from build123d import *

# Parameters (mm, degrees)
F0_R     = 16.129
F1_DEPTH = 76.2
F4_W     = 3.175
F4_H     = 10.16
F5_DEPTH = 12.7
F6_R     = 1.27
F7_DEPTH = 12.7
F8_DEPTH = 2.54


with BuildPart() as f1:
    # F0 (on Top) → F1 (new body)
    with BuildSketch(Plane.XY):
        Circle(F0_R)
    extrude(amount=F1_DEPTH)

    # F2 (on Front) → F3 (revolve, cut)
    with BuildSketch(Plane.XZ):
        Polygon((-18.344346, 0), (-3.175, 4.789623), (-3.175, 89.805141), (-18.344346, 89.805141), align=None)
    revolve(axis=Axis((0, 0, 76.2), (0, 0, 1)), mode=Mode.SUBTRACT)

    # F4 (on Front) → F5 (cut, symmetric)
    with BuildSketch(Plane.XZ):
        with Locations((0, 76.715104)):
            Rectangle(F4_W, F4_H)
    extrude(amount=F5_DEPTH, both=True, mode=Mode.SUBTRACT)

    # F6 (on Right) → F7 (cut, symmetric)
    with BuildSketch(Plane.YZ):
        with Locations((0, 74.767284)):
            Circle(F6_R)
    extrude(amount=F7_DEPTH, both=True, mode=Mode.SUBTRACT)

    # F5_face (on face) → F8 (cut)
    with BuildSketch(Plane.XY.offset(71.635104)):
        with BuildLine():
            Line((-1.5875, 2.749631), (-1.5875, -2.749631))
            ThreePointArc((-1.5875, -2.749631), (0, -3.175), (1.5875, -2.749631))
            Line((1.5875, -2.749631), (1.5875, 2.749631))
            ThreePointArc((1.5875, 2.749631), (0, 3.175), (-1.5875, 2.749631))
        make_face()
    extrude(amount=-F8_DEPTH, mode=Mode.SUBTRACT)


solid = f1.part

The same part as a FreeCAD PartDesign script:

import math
import FreeCAD as App
import Part
import Sketcher

V = App.Vector
Q = App.Units.Quantity

doc = App.newDocument("Part")
body = doc.addObject("PartDesign::Body", "Body")

sketch1 = body.newObject("Sketcher::SketchObject", "Sketch")
sketch1.AttachmentSupport = (doc.getObject("XY_Plane"), [""])
sketch1.MapMode = "FlatFace"
sketch1.addGeometry(Part.Circle(V(0, 0, 0), V(0, 0, 1), 16), False)
sketch1.addConstraint(Sketcher.Constraint("Coincident", 0, 3, -1, 1))
sketch1.addConstraint(Sketcher.Constraint("Diameter", 0, Q("1.27 in")))
pad1 = body.newObject("PartDesign::Pad", "Pad")
pad1.Profile = sketch1
pad1.Length = Q("3 in")

sketch2 = body.newObject("Sketcher::SketchObject", "Sketch001")
sketch2.AttachmentSupport = (doc.getObject("XZ_Plane"), [""])
sketch2.MapMode = "FlatFace"
sketch2.addGeometry(Part.LineSegment(V(-18, 0, 0), V(-3, 5, 0)), False)
sketch2.addGeometry(Part.LineSegment(V(-3, 5, 0), V(-3, 90, 0)), False)
sketch2.addGeometry(Part.LineSegment(V(-3, 90, 0), V(-18, 90, 0)), False)
sketch2.addGeometry(Part.LineSegment(V(-18, 90, 0), V(-18, 0, 0)), False)
sketch2.addConstraint(Sketcher.Constraint("Coincident", 0, 2, 1, 1))
sketch2.addConstraint(Sketcher.Constraint("Coincident", 1, 2, 2, 1))
sketch2.addConstraint(Sketcher.Constraint("Coincident", 2, 2, 3, 1))
sketch2.addConstraint(Sketcher.Constraint("Coincident", 3, 2, 0, 1))
sketch2.addConstraint(Sketcher.Constraint("Vertical", 1))
sketch2.addConstraint(Sketcher.Constraint("Horizontal", 2))
sketch2.addConstraint(Sketcher.Constraint("Vertical", 3))
sketch2.addConstraint(Sketcher.Constraint("PointOnObject", 3, 2, -1))
sketch2.addConstraint(Sketcher.Constraint("DistanceX", 0, 2, -1, 1, Q("0.125 in")))
sketch2.addConstraint(Sketcher.Constraint("DistanceY", 1, 1, 1, 2, 85.015518))
sketch2.addConstraint(Sketcher.Constraint("DistanceY", 3, 2, 3, 1, 89.805141))
sketch2.addConstraint(Sketcher.Constraint("Distance", 0, 15.907531))
groove = body.newObject("PartDesign::Groove", "Groove")
groove.Profile = sketch2
groove.ReferenceAxis = (sketch2, ["V_Axis"])
groove.Angle = 360

sketch3 = body.newObject("Sketcher::SketchObject", "Sketch002")
sketch3.AttachmentSupport = (doc.getObject("XZ_Plane"), [""])
sketch3.MapMode = "FlatFace"
sketch3.addGeometry(Part.LineSegment(V(-1.6, 81.8, 0), V(-1.6, 71.6, 0)), False)
sketch3.addGeometry(Part.LineSegment(V(-1.6, 71.6, 0), V(1.6, 71.6, 0)), False)
sketch3.addGeometry(Part.LineSegment(V(1.6, 71.6, 0), V(1.6, 81.8, 0)), False)
sketch3.addGeometry(Part.LineSegment(V(1.6, 81.8, 0), V(-1.6, 81.8, 0)), False)
sketch3.addConstraint(Sketcher.Constraint("Coincident", 0, 2, 1, 1))
sketch3.addConstraint(Sketcher.Constraint("Coincident", 1, 2, 2, 1))
sketch3.addConstraint(Sketcher.Constraint("Coincident", 2, 2, 3, 1))
sketch3.addConstraint(Sketcher.Constraint("Coincident", 3, 2, 0, 1))
sketch3.addConstraint(Sketcher.Constraint("Vertical", 0))
sketch3.addConstraint(Sketcher.Constraint("Horizontal", 1))
sketch3.addConstraint(Sketcher.Constraint("Vertical", 2))
sketch3.addConstraint(Sketcher.Constraint("Horizontal", 3))
sketch3.addConstraint(Sketcher.Constraint("DistanceY", 0, 2, 0, 1, Q("0.4 in")))
sketch3.addConstraint(Sketcher.Constraint("DistanceX", 1, 1, 1, 2, Q("0.125 in")))
sketch3.addConstraint(Sketcher.Constraint("DistanceX", 0, 2, -1, 1, Q("0.0625 in")))
sketch3.addConstraint(Sketcher.Constraint("DistanceY", -1, 1, 0, 2, 71.635104))
pocket1 = body.newObject("PartDesign::Pocket", "Pocket")
pocket1.Profile = sketch3
pocket1.Length = Q("1 in")
pocket1.Midplane = True

sketch4 = body.newObject("Sketcher::SketchObject", "Sketch003")
sketch4.AttachmentSupport = (doc.getObject("YZ_Plane"), [""])
sketch4.MapMode = "FlatFace"
sketch4.addGeometry(Part.Circle(V(0, 74.8, 0), V(0, 0, 1), 1.3), False)
sketch4.addConstraint(Sketcher.Constraint("PointOnObject", 0, 3, -2))
sketch4.addConstraint(Sketcher.Constraint("Diameter", 0, Q("0.1 in")))
sketch4.addConstraint(Sketcher.Constraint("DistanceY", -1, 1, 0, 3, 74.767284))
pocket2 = body.newObject("PartDesign::Pocket", "Pocket001")
pocket2.Profile = sketch4
pocket2.Length = Q("1 in")
pocket2.Midplane = True

sketch5 = body.newObject("Sketcher::SketchObject", "Sketch004")
sketch5.AttachmentSupport = (doc.getObject("XY_Plane"), [""])
sketch5.MapMode = "FlatFace"
sketch5.AttachmentOffset = App.Placement(V(0, 0, 71.635104), App.Rotation())
sketch5.addGeometry(Part.LineSegment(V(-1.6, 2.7, 0), V(-1.6, -2.7, 0)), False)
sketch5.addGeometry(Part.ArcOfCircle(Part.Circle(V(0, 0, 0), V(0, 0, 1), 3.2), math.radians(-120), math.radians(-60)), False)
sketch5.addGeometry(Part.LineSegment(V(1.6, -2.7, 0), V(1.6, 2.7, 0)), False)
sketch5.addGeometry(Part.ArcOfCircle(Part.Circle(V(0, 0, 0), V(0, 0, 1), 3.2), math.radians(60), math.radians(120)), False)
sketch5.addConstraint(Sketcher.Constraint("Coincident", 0, 2, 1, 1))
sketch5.addConstraint(Sketcher.Constraint("Coincident", 1, 2, 2, 1))
sketch5.addConstraint(Sketcher.Constraint("Coincident", 2, 2, 3, 1))
sketch5.addConstraint(Sketcher.Constraint("Coincident", 3, 2, 0, 1))
sketch5.addConstraint(Sketcher.Constraint("Vertical", 0))
sketch5.addConstraint(Sketcher.Constraint("Vertical", 2))
sketch5.addConstraint(Sketcher.Constraint("Coincident", 1, 3, -1, 1))
sketch5.addConstraint(Sketcher.Constraint("Coincident", 3, 3, -1, 1))
sketch5.addConstraint(Sketcher.Constraint("Equal", 1, 3))
sketch5.addConstraint(Sketcher.Constraint("Horizontal", 0, 2, 1, 2))
sketch5.addConstraint(Sketcher.Constraint("Radius", 1, Q("0.1250001 in")))
sketch5.addConstraint(Sketcher.Constraint("DistanceX", 0, 2, -1, 1, Q("0.0625 in")))
pocket3 = body.newObject("PartDesign::Pocket", "Pocket002")
pocket3.Profile = sketch5
pocket3.Length = Q("0.1 in")

doc.recompute()
